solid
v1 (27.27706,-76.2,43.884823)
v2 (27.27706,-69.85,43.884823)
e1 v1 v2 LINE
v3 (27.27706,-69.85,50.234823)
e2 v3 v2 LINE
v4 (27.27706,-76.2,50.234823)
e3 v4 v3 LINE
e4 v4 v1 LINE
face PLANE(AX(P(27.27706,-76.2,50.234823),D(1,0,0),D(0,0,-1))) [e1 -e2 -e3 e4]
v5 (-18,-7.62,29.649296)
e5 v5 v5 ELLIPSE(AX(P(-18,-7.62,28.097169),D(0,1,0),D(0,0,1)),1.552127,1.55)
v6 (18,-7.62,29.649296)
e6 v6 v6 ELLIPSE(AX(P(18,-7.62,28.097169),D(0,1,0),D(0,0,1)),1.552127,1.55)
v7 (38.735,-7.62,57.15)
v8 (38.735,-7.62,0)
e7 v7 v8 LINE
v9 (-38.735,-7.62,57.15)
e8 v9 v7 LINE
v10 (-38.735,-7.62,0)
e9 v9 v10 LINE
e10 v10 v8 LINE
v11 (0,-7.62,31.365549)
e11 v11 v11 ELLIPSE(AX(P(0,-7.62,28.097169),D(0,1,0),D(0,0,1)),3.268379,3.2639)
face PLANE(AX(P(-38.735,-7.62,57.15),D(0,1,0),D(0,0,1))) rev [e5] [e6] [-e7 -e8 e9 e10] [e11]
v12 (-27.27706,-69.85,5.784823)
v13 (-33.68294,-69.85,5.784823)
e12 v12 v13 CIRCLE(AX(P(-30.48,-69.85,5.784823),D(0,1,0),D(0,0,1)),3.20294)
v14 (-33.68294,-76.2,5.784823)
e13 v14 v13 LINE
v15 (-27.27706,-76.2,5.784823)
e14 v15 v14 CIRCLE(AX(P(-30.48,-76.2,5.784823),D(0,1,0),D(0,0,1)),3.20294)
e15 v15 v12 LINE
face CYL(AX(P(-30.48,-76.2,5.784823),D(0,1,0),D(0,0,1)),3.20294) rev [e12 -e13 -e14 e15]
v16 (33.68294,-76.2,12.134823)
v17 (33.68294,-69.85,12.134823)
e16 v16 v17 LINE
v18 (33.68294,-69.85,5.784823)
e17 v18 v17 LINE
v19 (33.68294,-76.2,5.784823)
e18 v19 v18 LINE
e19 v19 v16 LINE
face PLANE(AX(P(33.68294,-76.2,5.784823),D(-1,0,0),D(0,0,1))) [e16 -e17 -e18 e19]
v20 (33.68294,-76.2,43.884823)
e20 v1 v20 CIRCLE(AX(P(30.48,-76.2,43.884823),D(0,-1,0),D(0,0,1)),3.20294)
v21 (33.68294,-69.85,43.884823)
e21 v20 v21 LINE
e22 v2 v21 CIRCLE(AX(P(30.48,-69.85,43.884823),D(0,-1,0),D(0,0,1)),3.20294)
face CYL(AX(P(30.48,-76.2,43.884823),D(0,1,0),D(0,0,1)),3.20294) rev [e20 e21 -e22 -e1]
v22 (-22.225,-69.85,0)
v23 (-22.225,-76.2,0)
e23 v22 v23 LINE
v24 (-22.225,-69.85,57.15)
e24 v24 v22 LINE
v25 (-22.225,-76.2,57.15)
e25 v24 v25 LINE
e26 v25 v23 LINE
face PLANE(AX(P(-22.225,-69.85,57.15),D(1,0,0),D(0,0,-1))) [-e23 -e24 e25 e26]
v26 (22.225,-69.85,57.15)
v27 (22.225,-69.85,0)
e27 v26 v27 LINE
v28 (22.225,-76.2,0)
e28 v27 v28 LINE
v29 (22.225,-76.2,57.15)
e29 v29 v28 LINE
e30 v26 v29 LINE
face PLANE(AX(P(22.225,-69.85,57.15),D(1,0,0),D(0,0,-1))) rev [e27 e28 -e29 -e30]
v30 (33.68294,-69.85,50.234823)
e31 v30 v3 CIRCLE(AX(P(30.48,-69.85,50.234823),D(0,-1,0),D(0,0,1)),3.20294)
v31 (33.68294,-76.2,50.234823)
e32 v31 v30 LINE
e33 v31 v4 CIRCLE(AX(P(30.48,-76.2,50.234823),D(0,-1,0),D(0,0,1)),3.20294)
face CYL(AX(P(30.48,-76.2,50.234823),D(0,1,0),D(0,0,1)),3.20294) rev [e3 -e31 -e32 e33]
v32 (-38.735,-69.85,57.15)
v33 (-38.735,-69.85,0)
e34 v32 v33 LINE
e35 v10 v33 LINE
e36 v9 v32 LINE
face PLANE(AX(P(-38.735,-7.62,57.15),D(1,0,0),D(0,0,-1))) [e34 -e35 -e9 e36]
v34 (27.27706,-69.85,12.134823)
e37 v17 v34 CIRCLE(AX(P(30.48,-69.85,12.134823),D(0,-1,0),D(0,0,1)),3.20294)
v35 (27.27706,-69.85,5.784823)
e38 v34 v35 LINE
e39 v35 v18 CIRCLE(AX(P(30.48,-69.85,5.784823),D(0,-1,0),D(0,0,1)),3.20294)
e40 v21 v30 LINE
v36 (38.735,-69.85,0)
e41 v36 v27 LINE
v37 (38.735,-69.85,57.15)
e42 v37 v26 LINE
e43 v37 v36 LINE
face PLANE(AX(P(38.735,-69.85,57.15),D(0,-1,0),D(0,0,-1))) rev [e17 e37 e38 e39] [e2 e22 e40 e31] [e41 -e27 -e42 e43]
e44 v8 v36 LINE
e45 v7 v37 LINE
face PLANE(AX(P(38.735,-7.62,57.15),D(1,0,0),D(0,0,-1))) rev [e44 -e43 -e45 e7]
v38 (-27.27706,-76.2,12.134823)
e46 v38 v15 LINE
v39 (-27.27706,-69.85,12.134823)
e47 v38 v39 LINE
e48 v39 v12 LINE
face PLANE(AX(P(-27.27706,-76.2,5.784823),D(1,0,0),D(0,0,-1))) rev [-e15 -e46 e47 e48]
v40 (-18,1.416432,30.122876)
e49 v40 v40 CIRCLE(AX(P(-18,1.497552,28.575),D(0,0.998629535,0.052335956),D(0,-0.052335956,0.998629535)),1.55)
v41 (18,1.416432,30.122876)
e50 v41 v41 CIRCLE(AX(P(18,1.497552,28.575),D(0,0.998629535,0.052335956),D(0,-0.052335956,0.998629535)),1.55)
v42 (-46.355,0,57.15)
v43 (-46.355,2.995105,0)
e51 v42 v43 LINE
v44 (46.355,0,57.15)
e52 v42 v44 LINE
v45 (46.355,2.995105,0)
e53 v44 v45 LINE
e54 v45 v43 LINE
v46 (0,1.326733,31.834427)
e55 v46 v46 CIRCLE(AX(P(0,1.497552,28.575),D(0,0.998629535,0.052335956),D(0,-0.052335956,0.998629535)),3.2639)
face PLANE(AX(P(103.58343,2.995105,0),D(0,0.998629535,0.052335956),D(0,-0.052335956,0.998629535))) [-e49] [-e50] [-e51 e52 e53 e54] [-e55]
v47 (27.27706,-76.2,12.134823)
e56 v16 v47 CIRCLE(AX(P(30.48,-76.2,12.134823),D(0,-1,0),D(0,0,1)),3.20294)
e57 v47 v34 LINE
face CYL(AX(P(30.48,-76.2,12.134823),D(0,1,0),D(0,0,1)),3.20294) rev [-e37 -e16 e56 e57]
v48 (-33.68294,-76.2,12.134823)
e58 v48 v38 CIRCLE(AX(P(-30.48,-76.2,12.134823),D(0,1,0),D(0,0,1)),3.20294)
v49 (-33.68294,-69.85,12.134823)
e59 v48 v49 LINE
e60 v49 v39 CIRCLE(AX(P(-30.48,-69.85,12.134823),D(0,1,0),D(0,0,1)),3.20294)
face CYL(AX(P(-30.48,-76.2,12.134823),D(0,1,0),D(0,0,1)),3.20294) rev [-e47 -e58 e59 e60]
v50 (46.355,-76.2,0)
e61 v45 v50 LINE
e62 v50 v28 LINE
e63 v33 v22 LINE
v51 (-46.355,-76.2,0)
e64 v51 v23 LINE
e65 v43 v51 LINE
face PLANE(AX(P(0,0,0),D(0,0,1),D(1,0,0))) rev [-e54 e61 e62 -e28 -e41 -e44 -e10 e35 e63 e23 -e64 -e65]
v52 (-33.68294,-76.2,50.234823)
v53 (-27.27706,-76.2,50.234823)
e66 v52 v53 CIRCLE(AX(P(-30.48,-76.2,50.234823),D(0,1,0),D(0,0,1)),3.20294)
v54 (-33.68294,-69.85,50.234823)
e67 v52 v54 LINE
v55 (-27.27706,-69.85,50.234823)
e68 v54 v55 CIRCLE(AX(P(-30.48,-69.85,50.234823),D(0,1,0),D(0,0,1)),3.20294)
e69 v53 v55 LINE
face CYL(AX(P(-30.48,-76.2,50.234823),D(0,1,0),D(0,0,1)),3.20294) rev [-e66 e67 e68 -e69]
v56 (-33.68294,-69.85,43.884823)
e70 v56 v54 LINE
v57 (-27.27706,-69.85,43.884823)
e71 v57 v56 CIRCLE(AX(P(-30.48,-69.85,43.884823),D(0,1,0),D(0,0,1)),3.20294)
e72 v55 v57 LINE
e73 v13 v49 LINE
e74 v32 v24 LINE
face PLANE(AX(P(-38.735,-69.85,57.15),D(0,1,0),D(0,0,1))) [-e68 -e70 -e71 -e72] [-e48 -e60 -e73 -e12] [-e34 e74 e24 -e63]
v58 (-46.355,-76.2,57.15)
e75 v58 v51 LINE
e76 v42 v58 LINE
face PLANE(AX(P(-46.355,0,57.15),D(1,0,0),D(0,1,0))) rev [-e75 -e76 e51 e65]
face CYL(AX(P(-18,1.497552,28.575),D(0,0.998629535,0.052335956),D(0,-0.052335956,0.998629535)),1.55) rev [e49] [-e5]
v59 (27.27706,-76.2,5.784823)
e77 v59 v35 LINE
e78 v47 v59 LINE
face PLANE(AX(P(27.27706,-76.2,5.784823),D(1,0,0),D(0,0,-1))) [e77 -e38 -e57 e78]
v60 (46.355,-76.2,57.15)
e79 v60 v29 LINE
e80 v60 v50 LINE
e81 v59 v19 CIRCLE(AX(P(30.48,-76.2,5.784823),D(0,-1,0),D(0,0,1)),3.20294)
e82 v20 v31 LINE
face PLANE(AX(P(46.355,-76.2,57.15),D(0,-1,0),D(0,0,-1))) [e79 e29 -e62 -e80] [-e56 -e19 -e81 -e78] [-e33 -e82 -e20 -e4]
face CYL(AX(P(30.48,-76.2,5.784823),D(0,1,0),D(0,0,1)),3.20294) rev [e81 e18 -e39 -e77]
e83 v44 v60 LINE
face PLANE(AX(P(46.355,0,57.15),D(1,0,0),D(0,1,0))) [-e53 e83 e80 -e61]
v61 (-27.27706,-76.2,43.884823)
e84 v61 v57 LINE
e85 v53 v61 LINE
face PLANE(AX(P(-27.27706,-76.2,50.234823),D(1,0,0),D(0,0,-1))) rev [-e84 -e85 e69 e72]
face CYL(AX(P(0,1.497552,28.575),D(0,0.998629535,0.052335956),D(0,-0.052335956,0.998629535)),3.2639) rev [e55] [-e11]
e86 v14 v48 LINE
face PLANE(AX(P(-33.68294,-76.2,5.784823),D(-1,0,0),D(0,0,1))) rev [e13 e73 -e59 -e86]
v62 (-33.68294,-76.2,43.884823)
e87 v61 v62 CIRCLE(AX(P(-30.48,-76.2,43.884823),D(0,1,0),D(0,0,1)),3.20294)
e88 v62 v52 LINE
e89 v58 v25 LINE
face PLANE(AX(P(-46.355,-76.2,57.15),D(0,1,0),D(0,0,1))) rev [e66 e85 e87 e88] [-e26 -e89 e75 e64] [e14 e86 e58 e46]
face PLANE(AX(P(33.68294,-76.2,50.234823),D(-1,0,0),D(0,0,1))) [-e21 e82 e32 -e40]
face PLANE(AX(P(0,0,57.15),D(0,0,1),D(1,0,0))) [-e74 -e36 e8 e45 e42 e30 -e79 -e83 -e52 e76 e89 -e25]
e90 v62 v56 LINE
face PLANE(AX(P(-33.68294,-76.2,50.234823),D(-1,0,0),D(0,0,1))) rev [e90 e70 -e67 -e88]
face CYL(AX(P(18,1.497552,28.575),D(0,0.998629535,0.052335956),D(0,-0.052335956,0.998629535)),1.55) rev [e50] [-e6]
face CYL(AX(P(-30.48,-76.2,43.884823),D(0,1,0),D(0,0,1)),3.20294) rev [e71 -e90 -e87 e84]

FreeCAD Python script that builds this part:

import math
import FreeCAD as App
import Part
import Sketcher
Q = App.Units.Quantity


def add_polygon(sketch, points):
    """Adds a closed chain of lines whose ends are joined by coincident constraints."""
    first, n = sketch.GeometryCount, len(points)
    for a, b in zip(points, points[1:] + points[:1]):
        sketch.addGeometry(Part.LineSegment(App.Vector(*a, 0), App.Vector(*b, 0)), False)
    for i in range(n):
        sketch.addConstraint(Sketcher.Constraint("Coincident", first + i, 2, first + (i + 1) % n, 1))

doc = App.newDocument("Part")
params = doc.addObject("Spreadsheet::Sheet", "Params")
for row, (alias, value) in enumerate([
    ("sketch1_height", "3 in"),
    ("sketch1_width", "3.65 in"),
    ("sketch1_width2", "0.95 in"),
    ("sketch1_width3", "0.65 in"),
    ("sketch1_height2", "0.25 in"),
    ("pad1_length", "2.25 in"),
    ("sketch2_height", "0.25 in"),
    ("sketch3_height", "2.25 in"),
    ("pad2_length", "3.65 in"),
    ("sketch4_diameter", "0.257 in"),
    ("hole_diameter", "0.257 in"),
    ("hole2_diameter", "3.1 mm"),
], start=1):
    params.set(f"A{row}", alias)
    params.set(f"B{row}", "=" + value)
    params.setAlias(f"B{row}", alias)

body = doc.addObject("PartDesign::Body", "Body")

# Sketch on XY plane
sketch1 = body.newObject("Sketcher::SketchObject", "Sketch")
sketch1.AttachmentSupport = (doc.getObject("XY_Plane"), [""])
sketch1.MapMode = "FlatFace"
add_polygon(sketch1, [(46, 0), (-46, 0), (-46, -76), (-22, -76), (-22, -70), (-39, -70), (-39, -8), (39, -8), (39, -70), (22, -70), (22, -76), (46, -76)])  # lines 0-11
sketch1.addConstraint([
    Sketcher.Constraint("Horizontal", 0),
    Sketcher.Constraint("Vertical", 1),
    Sketcher.Constraint("Horizontal", 2),
    Sketcher.Constraint("Vertical", 3),
    Sketcher.Constraint("Horizontal", 4),
    Sketcher.Constraint("Vertical", 5),
    Sketcher.Constraint("Horizontal", 6),
    Sketcher.Constraint("Vertical", 7),
    Sketcher.Constraint("Horizontal", 8),
    Sketcher.Constraint("Vertical", 9),
    Sketcher.Constraint("Horizontal", 10),
    Sketcher.Constraint("Vertical", 11),
    Sketcher.Constraint("Symmetric", 0, 2, 11, 2, -1, 1),
    Sketcher.Constraint("Symmetric", 4, 2, 7, 2, -2),
    Sketcher.Constraint("Symmetric", 2, 2, 9, 2, -2),
    Sketcher.Constraint("DistanceY", 1, 2, 1, 1, Q("3 in")),
    Sketcher.Constraint("DistanceX", 0, 2, 0, 1, Q("3.65 in")),
    Sketcher.Constraint("DistanceX", 2, 1, 2, 2, Q("0.95 in")),
    Sketcher.Constraint("DistanceX", 4, 2, 4, 1, Q("0.65 in")),
    Sketcher.Constraint("DistanceY", 3, 1, 3, 2, Q("0.25 in")),
    Sketcher.Constraint("DistanceY", 5, 1, 5, 2, Q("2.45 in")),
])
sketch1.setExpression("Constraints[27]", "Params.sketch1_height")
sketch1.setExpression("Constraints[28]", "Params.sketch1_width")
sketch1.setExpression("Constraints[29]", "Params.sketch1_width2")
sketch1.setExpression("Constraints[30]", "Params.sketch1_width3")
sketch1.setExpression("Constraints[31]", "Params.sketch1_height2")
pad1 = body.newObject("PartDesign::Pad", "Pad")
pad1.Profile = sketch1
pad1.setExpression("Length", "Params.pad1_length")

# Sketch on XZ plane
sketch2 = body.newObject("Sketcher::SketchObject", "Sketch001")
sketch2.AttachmentSupport = (doc.getObject("XZ_Plane"), [""])
sketch2.MapMode = "FlatFace"
sketch2.AttachmentOffset = App.Placement(App.Vector(0, 0, 2.75 * 25.4), App.Rotation())
sketch2.addGeometry([
    Part.LineSegment(App.Vector(-27.3, 12.1, 0), App.Vector(-27.3, 5.8, 0)),  # 0
    Part.ArcOfCircle(Part.Circle(App.Vector(-30.5, 5.8, 0), App.Vector(0, 0, 1), 3.2), math.radians(180), math.radians(360)),  # 1
    Part.LineSegment(App.Vector(-33.7, 5.8, 0), App.Vector(-33.7, 12.1, 0)),  # 2
    Part.ArcOfCircle(Part.Circle(App.Vector(-30.5, 12.1, 0), App.Vector(0, 0, 1), 3.2), math.radians(0), math.radians(180)),  # 3
    Part.LineSegment(App.Vector(-33.7, 43.9, 0), App.Vector(-33.7, 50.2, 0)),  # 4
    Part.ArcOfCircle(Part.Circle(App.Vector(-30.5, 50.2, 0), App.Vector(0, 0, 1), 3.2), math.radians(0), math.radians(180)),  # 5
    Part.LineSegment(App.Vector(-27.3, 50.2, 0), App.Vector(-27.3, 43.9, 0)),  # 6
    Part.ArcOfCircle(Part.Circle(App.Vector(-30.5, 43.9, 0), App.Vector(0, 0, 1), 3.2), math.radians(180), math.radians(360)),  # 7
], False)
sketch2.addConstraint([
    Sketcher.Constraint("Tangent", 0, 2, 1, 2),
    Sketcher.Constraint("Tangent", 1, 1, 2, 1),
    Sketcher.Constraint("Tangent", 2, 2, 3, 2),
    Sketcher.Constraint("Tangent", 3, 1, 0, 1),
    Sketcher.Constraint("Tangent", 4, 2, 5, 2),
    Sketcher.Constraint("Tangent", 5, 1, 6, 1),
    Sketcher.Constraint("Tangent", 6, 2, 7, 2),
    Sketcher.Constraint("Tangent", 7, 1, 4, 1),
    Sketcher.Constraint("Vertical", 0),
    Sketcher.Constraint("Vertical", 2),
    Sketcher.Constraint("Vertical", 4),
    Sketcher.Constraint("Vertical", 6),
    Sketcher.Constraint("Equal", 3, 5),
    Sketcher.Constraint("Vertical", 3, 3, 5, 3),
    Sketcher.Constraint("Equal", 2, 4),
    Sketcher.Constraint("DistanceY", 0, 2, 0, 1, Q("0.25 in")),
    Sketcher.Constraint("DistanceX", 1, 3, -1, 1, Q("1.2 in")),
    Sketcher.Constraint("Radius", 1, Q("0.1261 in")),
    Sketcher.Constraint("DistanceY", 3, 3, 5, 3, Q("1.5 in")),
    Sketcher.Constraint("DistanceY", -1, 1, 1, 3, Q("5.784823 mm")),
])
sketch2.setExpression("Constraints[15]", "Params.sketch2_height")
pocket1 = body.newObject("PartDesign::Pocket", "Pocket")
pocket1.Profile = sketch2
pocket1.Type = "ThroughAll"
pocket1.Reversed = True
doc.recompute()

mirrored = body.newObject("PartDesign::Mirrored", "Mirrored")
mirrored.Originals = [pocket1]
mirrored.MirrorPlane = (doc.getObject("YZ_Plane"), [""])
body.Tip = mirrored

# Sketch on YZ plane
sketch3 = body.newObject("Sketcher::SketchObject", "Sketch002")
sketch3.AttachmentSupport = (doc.getObject("YZ_Plane"), [""])
sketch3.MapMode = "FlatFace"
sketch3.AttachmentOffset = App.Placement(App.Vector(0, 0, -1.825 * 25.4), App.Rotation())
add_polygon(sketch3, [(0, 0), (0, 57.1), (3, 0)])  # lines 0-2
sketch3.addConstraint([
    Sketcher.Constraint("Vertical", 0),
    Sketcher.Constraint("Horizontal", 2),
    Sketcher.Constraint("Coincident", 2, 2, -1, 1),
    Sketcher.Constraint("Angle", 1, Q("-87 deg")),
    Sketcher.Constraint("DistanceY", 0, 1, 0, 2, Q("2.25 in")),
])
sketch3.setExpression("Constraints[7]", "Params.sketch3_height")
pad2 = body.newObject("PartDesign::Pad", "Pad001")
pad2.Profile = sketch3
pad2.setExpression("Length", "Params.pad2_length")

# Sketch on an angled plane
sketch4 = body.newObject("Sketcher::SketchObject", "Sketch003")
sketch4.Placement = App.Placement(App.Vector(0, 2.986901, 0.156537), App.Rotation(App.Vector(1, 0, 0), App.Vector(0, 0.052335956, -0.998629535), App.Vector(0, 0.998629535, 0.052335956), "ZXY"))
sketch4.addGeometry(Part.Circle(App.Vector(0, -28.5, 0), App.Vector(0, 0, 1), 3.3), False)
sketch4.addConstraint([
    Sketcher.Constraint("PointOnObject", 0, 3, -2),
    Sketcher.Constraint("Diameter", 0, Q("0.257 in")),
    Sketcher.Constraint("DistanceY", 0, 3, -1, 1, Q("28.457463 mm")),
])
sketch4.setExpression("Constraints[1]", "Params.sketch4_diameter")
doc.recompute()
hole = body.newObject("PartDesign::Hole", "Hole")
hole.Profile = sketch4
hole.ThreadType = "None"
hole.setExpression("Diameter", "Params.hole_diameter")
hole.DepthType = "ThroughAll"

# Sketch on an angled plane
sketch5 = body.newObject("Sketcher::SketchObject", "Sketch004")
sketch5.Placement = App.Placement(App.Vector(0, 2.986901, 0.156537), App.Rotation(App.Vector(1, 0, 0), App.Vector(0, 0.052335956, -0.998629535), App.Vector(0, 0.998629535, 0.052335956), "ZXY"))
sketch5.addGeometry([
    Part.Circle(App.Vector(-18, -28.5, 0), App.Vector(0, 0, 1), 1.6),
    Part.Circle(App.Vector(18, -28.5, 0), App.Vector(0, 0, 1), 1.6),
], False)
sketch5.addConstraint([
    Sketcher.Constraint("Equal", 0, 1),
    Sketcher.Constraint("Symmetric", 0, 3, 1, 3, -2),
    Sketcher.Constraint("Diameter", 0, Q("3.1 mm")),
    Sketcher.Constraint("DistanceX", 0, 3, -1, 1, Q("18 mm")),
    Sketcher.Constraint("DistanceY", 0, 3, -1, 1, Q("28.457463 mm")),
])
doc.recompute()
hole2 = body.newObject("PartDesign::Hole", "Hole001")
hole2.Profile = sketch5
hole2.ThreadType = "None"
hole2.setExpression("Diameter", "Params.hole2_diameter")
hole2.DepthType = "ThroughAll"

doc.recompute()
